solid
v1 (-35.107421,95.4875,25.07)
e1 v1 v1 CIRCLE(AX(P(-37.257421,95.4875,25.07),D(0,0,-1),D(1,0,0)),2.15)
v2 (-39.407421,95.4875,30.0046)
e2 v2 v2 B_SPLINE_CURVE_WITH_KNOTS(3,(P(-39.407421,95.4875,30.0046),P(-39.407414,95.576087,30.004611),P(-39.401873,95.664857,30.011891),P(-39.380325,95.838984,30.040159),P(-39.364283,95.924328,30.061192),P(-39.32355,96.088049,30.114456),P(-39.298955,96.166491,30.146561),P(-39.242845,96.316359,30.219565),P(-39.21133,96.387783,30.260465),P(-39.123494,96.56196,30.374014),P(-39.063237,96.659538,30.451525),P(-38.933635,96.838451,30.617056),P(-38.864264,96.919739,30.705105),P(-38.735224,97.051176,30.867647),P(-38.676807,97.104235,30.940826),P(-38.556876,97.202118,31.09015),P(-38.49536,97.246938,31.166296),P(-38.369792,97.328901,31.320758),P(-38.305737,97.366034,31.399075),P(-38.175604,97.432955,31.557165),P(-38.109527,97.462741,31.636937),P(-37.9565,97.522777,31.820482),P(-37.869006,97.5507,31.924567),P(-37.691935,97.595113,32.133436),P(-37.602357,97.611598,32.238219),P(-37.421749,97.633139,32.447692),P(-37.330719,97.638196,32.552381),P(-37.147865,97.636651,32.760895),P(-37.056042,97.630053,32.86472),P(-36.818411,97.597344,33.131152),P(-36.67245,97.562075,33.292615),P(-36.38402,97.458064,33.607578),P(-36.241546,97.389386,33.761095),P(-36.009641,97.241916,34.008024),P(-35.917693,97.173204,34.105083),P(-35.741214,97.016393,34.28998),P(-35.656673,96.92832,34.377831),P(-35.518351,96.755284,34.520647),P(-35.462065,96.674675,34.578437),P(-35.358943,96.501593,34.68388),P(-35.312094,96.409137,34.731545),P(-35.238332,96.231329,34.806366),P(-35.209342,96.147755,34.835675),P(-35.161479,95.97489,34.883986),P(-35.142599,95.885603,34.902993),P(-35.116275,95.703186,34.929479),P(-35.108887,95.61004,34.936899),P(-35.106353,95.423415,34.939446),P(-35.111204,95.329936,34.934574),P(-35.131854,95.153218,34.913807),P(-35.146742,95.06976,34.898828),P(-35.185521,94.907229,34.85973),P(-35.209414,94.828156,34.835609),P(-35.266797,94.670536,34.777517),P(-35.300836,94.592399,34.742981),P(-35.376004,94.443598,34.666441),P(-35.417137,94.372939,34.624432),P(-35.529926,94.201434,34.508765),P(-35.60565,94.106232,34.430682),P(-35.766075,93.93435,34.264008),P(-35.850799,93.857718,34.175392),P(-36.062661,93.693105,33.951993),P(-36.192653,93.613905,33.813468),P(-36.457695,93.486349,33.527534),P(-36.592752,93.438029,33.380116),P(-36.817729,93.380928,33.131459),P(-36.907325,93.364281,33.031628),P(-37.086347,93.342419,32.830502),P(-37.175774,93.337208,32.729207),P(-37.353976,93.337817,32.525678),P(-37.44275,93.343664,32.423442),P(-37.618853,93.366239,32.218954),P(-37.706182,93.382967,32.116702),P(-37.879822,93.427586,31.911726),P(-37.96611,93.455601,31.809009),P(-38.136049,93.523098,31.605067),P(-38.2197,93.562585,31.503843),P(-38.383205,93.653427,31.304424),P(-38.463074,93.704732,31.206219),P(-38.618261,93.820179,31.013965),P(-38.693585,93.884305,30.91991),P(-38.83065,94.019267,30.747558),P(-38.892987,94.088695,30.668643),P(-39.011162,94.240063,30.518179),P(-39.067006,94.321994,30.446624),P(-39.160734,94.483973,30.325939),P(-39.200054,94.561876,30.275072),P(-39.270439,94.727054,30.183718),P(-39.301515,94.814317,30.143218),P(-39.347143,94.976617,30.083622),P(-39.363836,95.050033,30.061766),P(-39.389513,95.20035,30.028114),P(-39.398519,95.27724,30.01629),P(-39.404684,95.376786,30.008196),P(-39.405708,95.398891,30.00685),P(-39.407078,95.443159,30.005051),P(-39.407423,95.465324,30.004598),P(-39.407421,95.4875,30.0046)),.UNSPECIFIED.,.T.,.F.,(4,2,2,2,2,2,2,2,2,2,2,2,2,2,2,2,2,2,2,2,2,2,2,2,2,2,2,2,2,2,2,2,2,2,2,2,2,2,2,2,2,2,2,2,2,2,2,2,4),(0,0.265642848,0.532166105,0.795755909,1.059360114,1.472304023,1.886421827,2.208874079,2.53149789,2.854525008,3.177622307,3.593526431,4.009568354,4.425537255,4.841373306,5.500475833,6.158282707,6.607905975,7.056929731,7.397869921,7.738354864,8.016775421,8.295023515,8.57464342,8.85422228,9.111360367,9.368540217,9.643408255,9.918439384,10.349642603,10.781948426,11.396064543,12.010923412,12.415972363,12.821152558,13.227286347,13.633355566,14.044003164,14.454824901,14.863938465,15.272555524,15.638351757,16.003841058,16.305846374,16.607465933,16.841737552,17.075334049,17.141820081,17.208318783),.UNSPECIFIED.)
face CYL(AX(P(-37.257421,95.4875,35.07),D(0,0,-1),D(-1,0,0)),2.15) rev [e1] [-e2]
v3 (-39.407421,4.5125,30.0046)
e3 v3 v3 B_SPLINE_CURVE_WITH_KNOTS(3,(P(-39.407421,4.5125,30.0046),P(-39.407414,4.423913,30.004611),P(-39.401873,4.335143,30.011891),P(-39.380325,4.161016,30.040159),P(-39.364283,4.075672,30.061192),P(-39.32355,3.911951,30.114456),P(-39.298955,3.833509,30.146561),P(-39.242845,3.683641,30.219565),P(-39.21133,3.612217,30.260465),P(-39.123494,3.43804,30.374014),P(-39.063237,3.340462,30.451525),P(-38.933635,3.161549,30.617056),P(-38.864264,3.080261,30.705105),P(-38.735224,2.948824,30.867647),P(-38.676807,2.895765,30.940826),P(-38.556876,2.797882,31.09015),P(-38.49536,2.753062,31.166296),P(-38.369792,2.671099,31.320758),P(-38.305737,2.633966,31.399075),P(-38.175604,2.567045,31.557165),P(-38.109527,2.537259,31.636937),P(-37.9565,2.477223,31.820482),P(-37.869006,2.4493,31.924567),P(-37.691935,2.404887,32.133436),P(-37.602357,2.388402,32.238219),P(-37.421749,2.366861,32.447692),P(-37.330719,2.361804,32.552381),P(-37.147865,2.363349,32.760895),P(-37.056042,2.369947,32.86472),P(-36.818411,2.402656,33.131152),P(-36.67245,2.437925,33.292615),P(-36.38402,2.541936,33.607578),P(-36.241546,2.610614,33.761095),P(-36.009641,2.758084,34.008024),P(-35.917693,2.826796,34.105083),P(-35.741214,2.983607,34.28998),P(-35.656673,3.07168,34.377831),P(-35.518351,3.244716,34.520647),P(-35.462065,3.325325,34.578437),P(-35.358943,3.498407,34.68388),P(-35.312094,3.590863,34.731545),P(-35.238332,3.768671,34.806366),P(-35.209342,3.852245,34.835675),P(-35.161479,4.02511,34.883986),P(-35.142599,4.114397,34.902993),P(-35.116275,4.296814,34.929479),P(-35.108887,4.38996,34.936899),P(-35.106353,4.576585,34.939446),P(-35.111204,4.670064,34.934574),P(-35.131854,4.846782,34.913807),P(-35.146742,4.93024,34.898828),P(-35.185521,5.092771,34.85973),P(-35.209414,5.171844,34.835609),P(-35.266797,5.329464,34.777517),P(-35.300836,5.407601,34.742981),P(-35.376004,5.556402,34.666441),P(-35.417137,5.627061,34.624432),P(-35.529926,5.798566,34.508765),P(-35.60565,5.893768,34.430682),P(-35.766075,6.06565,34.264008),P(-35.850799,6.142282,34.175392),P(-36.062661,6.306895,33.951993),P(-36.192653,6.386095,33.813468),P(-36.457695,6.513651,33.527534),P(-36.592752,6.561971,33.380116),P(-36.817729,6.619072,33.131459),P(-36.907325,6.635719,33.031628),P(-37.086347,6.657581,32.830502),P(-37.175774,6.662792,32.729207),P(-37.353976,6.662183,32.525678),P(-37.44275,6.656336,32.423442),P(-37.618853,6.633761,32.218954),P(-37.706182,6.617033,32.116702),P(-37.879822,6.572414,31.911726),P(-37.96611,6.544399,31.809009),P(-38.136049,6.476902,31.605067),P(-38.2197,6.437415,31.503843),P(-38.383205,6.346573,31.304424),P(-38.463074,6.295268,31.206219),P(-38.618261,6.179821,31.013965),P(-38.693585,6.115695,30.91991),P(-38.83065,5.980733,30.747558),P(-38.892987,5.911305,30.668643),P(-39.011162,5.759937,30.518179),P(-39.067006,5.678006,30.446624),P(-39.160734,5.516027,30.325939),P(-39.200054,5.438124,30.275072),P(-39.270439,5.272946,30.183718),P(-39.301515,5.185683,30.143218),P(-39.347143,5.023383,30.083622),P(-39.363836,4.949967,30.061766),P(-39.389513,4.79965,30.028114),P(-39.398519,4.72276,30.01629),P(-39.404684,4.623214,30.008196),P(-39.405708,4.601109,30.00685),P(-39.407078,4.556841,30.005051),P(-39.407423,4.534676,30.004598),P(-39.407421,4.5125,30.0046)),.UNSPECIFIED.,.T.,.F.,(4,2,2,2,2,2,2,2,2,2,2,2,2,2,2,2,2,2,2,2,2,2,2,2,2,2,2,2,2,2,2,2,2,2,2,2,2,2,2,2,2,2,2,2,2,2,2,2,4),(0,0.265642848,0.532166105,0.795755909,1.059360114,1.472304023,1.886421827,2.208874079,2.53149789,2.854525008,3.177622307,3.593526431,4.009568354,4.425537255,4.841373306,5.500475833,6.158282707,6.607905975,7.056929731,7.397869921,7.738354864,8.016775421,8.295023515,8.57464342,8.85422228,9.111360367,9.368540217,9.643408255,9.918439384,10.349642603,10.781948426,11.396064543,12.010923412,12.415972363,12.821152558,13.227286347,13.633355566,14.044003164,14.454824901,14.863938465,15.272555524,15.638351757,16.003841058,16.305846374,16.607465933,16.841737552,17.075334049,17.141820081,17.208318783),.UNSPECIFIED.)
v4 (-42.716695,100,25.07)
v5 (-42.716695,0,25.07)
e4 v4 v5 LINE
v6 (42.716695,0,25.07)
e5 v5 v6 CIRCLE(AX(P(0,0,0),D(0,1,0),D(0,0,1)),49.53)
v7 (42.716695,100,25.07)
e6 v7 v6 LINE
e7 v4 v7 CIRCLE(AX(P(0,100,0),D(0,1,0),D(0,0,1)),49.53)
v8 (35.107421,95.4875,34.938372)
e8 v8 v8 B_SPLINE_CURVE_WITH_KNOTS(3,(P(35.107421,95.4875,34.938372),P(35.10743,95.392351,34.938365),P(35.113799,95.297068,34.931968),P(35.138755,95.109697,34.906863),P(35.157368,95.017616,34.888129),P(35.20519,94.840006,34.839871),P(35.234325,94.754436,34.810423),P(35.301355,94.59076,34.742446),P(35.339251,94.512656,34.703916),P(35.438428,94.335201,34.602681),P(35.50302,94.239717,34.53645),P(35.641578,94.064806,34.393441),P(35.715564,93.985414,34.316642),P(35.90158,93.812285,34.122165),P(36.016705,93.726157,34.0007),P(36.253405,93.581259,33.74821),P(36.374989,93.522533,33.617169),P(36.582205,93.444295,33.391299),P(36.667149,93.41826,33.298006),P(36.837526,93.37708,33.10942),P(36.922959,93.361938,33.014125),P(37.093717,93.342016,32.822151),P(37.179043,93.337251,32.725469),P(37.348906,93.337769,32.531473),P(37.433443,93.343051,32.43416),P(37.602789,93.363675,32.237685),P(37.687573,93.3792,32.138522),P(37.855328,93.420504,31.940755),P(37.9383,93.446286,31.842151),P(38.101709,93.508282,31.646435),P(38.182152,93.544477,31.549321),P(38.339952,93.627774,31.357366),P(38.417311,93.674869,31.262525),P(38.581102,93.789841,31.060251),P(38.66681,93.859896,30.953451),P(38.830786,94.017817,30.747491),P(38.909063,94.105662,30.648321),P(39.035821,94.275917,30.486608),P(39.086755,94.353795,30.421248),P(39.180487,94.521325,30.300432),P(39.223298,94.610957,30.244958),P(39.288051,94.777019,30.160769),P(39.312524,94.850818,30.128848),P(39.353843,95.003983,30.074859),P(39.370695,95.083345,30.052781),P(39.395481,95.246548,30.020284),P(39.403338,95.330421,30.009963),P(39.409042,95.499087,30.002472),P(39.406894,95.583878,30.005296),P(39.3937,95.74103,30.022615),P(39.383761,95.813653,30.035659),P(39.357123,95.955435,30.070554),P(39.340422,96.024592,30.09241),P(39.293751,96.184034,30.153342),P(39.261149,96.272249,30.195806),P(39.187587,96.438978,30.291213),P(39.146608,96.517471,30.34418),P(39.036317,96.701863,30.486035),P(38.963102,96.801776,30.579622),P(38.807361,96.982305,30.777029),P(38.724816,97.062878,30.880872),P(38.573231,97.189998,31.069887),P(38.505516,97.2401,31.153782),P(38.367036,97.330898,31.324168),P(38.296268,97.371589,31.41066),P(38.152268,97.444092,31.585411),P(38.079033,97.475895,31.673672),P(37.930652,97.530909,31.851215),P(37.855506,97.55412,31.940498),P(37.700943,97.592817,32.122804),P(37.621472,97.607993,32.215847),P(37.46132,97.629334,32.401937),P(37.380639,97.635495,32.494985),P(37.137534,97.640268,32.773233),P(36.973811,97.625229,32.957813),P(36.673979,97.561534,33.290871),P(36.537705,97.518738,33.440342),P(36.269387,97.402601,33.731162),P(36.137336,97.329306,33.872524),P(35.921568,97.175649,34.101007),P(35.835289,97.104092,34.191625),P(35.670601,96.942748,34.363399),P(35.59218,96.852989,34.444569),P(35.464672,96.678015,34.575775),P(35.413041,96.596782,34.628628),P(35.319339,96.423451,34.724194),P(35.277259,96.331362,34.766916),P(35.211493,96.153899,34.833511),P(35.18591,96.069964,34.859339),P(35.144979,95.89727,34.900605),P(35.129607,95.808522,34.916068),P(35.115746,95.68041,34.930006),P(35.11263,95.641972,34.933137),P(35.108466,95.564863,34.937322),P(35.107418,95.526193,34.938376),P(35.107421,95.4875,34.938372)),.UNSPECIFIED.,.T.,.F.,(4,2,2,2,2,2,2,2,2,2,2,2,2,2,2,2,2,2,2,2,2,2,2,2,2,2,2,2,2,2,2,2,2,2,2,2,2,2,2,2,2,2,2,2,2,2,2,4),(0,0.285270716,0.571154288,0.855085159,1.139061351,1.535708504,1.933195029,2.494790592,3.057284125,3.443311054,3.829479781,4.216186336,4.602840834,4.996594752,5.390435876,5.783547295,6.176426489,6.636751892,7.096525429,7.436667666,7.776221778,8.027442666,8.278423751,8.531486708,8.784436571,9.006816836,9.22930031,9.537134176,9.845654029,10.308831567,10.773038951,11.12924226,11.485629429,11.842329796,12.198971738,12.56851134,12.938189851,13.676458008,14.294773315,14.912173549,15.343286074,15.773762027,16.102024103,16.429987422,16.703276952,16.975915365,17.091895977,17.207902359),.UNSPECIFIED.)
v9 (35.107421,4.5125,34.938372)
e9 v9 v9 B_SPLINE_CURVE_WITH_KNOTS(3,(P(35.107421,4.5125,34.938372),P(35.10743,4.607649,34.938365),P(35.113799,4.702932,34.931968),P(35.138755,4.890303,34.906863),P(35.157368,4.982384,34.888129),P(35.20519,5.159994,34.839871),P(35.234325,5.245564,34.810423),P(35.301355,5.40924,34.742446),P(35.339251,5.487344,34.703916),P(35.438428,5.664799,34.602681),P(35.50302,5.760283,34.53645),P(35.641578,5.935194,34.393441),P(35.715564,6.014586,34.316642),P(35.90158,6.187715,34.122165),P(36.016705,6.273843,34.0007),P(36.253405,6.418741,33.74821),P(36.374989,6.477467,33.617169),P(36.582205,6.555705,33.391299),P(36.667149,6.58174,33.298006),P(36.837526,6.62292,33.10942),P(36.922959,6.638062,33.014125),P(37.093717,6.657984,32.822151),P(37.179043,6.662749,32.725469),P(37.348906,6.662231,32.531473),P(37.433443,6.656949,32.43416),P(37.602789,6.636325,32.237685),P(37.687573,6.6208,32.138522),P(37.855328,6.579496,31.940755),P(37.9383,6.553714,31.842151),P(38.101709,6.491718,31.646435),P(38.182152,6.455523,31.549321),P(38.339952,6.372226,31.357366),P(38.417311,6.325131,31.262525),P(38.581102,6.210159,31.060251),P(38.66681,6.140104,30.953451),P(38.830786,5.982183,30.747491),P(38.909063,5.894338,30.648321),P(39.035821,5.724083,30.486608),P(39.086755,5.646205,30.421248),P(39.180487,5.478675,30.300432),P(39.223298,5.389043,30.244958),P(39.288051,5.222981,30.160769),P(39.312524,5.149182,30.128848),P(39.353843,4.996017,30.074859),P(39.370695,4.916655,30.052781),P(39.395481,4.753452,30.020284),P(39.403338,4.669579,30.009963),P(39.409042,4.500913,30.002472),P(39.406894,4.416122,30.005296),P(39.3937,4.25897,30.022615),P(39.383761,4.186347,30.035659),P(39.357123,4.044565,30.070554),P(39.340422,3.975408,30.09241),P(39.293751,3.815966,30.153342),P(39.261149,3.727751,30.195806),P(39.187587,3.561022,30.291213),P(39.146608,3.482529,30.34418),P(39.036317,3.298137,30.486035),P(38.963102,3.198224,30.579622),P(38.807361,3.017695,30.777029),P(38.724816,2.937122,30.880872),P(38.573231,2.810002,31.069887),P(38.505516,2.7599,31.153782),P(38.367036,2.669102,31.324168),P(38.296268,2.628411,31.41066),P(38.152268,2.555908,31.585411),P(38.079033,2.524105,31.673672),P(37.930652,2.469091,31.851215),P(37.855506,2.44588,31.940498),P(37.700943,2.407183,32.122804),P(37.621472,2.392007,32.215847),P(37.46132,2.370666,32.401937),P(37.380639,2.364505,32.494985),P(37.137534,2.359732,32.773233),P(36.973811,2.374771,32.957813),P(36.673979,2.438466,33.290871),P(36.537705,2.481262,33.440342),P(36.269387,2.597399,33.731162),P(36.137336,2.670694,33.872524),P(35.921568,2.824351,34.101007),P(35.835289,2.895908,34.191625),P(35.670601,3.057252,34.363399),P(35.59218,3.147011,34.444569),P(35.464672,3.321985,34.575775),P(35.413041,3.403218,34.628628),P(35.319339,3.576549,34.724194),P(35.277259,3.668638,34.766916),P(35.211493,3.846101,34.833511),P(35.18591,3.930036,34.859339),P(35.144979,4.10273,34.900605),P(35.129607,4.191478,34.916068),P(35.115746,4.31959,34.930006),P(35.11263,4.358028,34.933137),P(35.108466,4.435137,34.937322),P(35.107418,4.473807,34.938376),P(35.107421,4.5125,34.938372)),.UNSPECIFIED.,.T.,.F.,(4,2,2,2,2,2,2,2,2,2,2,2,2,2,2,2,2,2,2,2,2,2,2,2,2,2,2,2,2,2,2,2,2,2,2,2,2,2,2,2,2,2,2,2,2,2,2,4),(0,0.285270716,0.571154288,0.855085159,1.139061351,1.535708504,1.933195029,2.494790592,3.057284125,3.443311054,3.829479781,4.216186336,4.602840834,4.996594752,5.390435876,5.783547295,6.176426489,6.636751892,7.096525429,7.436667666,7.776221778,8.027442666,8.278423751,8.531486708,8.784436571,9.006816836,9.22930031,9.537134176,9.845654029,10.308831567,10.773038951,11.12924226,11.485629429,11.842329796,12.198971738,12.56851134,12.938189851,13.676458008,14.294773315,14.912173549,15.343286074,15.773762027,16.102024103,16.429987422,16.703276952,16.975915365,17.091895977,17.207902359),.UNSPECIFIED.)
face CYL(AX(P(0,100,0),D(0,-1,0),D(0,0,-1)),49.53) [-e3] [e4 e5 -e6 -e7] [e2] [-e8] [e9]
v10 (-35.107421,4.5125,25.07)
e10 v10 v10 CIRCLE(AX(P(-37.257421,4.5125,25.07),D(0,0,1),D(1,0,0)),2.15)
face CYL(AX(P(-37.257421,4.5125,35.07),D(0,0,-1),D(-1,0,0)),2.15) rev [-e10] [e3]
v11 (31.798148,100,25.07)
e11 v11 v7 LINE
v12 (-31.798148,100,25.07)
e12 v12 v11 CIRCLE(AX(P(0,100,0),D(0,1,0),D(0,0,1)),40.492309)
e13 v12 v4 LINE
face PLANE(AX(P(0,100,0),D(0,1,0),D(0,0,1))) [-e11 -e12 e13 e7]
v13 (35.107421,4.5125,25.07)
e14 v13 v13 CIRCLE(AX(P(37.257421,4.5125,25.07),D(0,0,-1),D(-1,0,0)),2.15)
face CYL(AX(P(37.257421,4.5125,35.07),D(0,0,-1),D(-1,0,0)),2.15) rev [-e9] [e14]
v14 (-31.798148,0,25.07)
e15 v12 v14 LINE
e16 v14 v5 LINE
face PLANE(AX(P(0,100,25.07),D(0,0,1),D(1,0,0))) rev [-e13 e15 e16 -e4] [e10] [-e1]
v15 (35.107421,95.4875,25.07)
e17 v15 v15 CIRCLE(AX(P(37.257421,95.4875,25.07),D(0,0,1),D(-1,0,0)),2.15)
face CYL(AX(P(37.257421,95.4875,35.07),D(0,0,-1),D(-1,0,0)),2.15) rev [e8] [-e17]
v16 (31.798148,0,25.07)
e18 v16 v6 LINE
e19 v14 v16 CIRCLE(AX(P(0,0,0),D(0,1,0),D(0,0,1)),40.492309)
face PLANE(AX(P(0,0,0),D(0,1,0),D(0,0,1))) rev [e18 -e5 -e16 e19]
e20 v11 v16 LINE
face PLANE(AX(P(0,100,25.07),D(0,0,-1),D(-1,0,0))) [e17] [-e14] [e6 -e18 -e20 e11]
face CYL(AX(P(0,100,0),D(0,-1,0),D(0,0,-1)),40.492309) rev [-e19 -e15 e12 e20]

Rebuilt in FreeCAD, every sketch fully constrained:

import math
import FreeCAD as App
import Part
import Sketcher
from FreeCAD import Vector

doc = App.newDocument("Part")
body = doc.addObject("PartDesign::Body", "Body")

sketch1 = doc.addObject("Sketcher::SketchObject", "Sketch")
body.addObject(sketch1)
sketch1.AttachmentSupport = (doc.XZ_Plane, [""])
sketch1.MapMode = "FlatFace"
sketch1.addGeometry(Part.ArcOfCircle(Part.Circle(Vector(0, 0, 0), Vector(0, 0, 1), 40), math.radians(38), math.radians(142)), False)
sketch1.addGeometry(Part.LineSegment(Vector(-32, 25, 0), Vector(-43, 25, 0)), False)
sketch1.addGeometry(Part.ArcOfCircle(Part.Circle(Vector(0, 0, 0), Vector(0, 0, 1), 50), math.radians(30), math.radians(150)), False)
sketch1.addGeometry(Part.LineSegment(Vector(43, 25, 0), Vector(32, 25, 0)), False)
sketch1.addConstraint(Sketcher.Constraint("Coincident", 0, 2, 1, 1))
sketch1.addConstraint(Sketcher.Constraint("Coincident", 1, 2, 2, 2))
sketch1.addConstraint(Sketcher.Constraint("Coincident", 2, 1, 3, 1))
sketch1.addConstraint(Sketcher.Constraint("Coincident", 3, 2, 0, 1))
sketch1.addConstraint(Sketcher.Constraint("Horizontal", 1))
sketch1.addConstraint(Sketcher.Constraint("Horizontal", 3))
sketch1.addConstraint(Sketcher.Constraint("Coincident", 0, 3, -1, 1))
sketch1.addConstraint(Sketcher.Constraint("Coincident", 2, 3, -1, 1))
sketch1.addConstraint(Sketcher.Constraint("Horizontal", 1, 2, 2, 1))
sketch1.addConstraint(Sketcher.Constraint("Radius", 2, 49.53))
sketch1.addConstraint(Sketcher.Constraint("DistanceY", -1, 1, 0, 2, 25.07))
sketch1.addConstraint(Sketcher.Constraint("Radius", 0, 40.492309))
pad1 = doc.addObject("PartDesign::Pad", "Pad")
body.addObject(pad1)
pad1.Profile = sketch1
pad1.Length = 100
pad1.Reversed = True

sketch2 = doc.addObject("Sketcher::SketchObject", "Sketch001")
body.addObject(sketch2)
sketch2.AttachmentSupport = (doc.XY_Plane, [""])
sketch2.MapMode = "FlatFace"
sketch2.AttachmentOffset = App.Placement(Vector(0, 0, 25.07), App.Rotation())
sketch2.addGeometry(Part.Circle(Vector(37.3, 4.5, 0), Vector(0, 0, 1), 2.1), False)
sketch2.addConstraint(Sketcher.Constraint("Diameter", 0, 4.3))
sketch2.addConstraint(Sketcher.Constraint("DistanceY", -1, 1, 0, 3, 4.5125))
sketch2.addConstraint(Sketcher.Constraint("DistanceX", -1, 1, 0, 3, 37.257421))
pocket1 = doc.addObject("PartDesign::Pocket", "Pocket")
body.addObject(pocket1)
pocket1.Profile = sketch2
pocket1.Length = 10
pocket1.Reversed = True
doc.recompute()

datumplane = doc.addObject("PartDesign::Plane", "DatumPlane")
body.addObject(datumplane)
datumplane.AttachmentSupport = (doc.XZ_Plane, [""])
datumplane.MapMode = "FlatFace"
datumplane.AttachmentOffset = App.Placement(Vector(0, 0, -50), App.Rotation())
mirrored = doc.addObject("PartDesign::Mirrored", "Mirrored")
body.addObject(mirrored)
mirrored.Originals = [pocket1]
mirrored.MirrorPlane = (datumplane, [""])
body.Tip = mirrored
doc.recompute()

mirrored2 = doc.addObject("PartDesign::Mirrored", "Mirrored001")
body.addObject(mirrored2)
mirrored2.Originals = [pocket1]
mirrored2.MirrorPlane = (doc.YZ_Plane, [""])
body.Tip = mirrored2

sketch3 = doc.addObject("Sketcher::SketchObject", "Sketch002")
body.addObject(sketch3)
sketch3.AttachmentSupport = (doc.XY_Plane, [""])
sketch3.MapMode = "FlatFace"
sketch3.AttachmentOffset = App.Placement(Vector(0, 0, 25.07), App.Rotation())
sketch3.addGeometry(Part.Circle(Vector(-37.3, 95.5, 0), Vector(0, 0, 1), 2.1), False)
sketch3.addConstraint(Sketcher.Constraint("Diameter", 0, 4.3))
sketch3.addConstraint(Sketcher.Constraint("DistanceY", -1, 1, 0, 3, 95.4875))
sketch3.addConstraint(Sketcher.Constraint("DistanceX", 0, 3, -1, 1, 37.257421))
pocket2 = doc.addObject("PartDesign::Pocket", "Pocket001")
body.addObject(pocket2)
pocket2.Profile = sketch3
pocket2.Length = 10
pocket2.Reversed = True

doc.recompute()
